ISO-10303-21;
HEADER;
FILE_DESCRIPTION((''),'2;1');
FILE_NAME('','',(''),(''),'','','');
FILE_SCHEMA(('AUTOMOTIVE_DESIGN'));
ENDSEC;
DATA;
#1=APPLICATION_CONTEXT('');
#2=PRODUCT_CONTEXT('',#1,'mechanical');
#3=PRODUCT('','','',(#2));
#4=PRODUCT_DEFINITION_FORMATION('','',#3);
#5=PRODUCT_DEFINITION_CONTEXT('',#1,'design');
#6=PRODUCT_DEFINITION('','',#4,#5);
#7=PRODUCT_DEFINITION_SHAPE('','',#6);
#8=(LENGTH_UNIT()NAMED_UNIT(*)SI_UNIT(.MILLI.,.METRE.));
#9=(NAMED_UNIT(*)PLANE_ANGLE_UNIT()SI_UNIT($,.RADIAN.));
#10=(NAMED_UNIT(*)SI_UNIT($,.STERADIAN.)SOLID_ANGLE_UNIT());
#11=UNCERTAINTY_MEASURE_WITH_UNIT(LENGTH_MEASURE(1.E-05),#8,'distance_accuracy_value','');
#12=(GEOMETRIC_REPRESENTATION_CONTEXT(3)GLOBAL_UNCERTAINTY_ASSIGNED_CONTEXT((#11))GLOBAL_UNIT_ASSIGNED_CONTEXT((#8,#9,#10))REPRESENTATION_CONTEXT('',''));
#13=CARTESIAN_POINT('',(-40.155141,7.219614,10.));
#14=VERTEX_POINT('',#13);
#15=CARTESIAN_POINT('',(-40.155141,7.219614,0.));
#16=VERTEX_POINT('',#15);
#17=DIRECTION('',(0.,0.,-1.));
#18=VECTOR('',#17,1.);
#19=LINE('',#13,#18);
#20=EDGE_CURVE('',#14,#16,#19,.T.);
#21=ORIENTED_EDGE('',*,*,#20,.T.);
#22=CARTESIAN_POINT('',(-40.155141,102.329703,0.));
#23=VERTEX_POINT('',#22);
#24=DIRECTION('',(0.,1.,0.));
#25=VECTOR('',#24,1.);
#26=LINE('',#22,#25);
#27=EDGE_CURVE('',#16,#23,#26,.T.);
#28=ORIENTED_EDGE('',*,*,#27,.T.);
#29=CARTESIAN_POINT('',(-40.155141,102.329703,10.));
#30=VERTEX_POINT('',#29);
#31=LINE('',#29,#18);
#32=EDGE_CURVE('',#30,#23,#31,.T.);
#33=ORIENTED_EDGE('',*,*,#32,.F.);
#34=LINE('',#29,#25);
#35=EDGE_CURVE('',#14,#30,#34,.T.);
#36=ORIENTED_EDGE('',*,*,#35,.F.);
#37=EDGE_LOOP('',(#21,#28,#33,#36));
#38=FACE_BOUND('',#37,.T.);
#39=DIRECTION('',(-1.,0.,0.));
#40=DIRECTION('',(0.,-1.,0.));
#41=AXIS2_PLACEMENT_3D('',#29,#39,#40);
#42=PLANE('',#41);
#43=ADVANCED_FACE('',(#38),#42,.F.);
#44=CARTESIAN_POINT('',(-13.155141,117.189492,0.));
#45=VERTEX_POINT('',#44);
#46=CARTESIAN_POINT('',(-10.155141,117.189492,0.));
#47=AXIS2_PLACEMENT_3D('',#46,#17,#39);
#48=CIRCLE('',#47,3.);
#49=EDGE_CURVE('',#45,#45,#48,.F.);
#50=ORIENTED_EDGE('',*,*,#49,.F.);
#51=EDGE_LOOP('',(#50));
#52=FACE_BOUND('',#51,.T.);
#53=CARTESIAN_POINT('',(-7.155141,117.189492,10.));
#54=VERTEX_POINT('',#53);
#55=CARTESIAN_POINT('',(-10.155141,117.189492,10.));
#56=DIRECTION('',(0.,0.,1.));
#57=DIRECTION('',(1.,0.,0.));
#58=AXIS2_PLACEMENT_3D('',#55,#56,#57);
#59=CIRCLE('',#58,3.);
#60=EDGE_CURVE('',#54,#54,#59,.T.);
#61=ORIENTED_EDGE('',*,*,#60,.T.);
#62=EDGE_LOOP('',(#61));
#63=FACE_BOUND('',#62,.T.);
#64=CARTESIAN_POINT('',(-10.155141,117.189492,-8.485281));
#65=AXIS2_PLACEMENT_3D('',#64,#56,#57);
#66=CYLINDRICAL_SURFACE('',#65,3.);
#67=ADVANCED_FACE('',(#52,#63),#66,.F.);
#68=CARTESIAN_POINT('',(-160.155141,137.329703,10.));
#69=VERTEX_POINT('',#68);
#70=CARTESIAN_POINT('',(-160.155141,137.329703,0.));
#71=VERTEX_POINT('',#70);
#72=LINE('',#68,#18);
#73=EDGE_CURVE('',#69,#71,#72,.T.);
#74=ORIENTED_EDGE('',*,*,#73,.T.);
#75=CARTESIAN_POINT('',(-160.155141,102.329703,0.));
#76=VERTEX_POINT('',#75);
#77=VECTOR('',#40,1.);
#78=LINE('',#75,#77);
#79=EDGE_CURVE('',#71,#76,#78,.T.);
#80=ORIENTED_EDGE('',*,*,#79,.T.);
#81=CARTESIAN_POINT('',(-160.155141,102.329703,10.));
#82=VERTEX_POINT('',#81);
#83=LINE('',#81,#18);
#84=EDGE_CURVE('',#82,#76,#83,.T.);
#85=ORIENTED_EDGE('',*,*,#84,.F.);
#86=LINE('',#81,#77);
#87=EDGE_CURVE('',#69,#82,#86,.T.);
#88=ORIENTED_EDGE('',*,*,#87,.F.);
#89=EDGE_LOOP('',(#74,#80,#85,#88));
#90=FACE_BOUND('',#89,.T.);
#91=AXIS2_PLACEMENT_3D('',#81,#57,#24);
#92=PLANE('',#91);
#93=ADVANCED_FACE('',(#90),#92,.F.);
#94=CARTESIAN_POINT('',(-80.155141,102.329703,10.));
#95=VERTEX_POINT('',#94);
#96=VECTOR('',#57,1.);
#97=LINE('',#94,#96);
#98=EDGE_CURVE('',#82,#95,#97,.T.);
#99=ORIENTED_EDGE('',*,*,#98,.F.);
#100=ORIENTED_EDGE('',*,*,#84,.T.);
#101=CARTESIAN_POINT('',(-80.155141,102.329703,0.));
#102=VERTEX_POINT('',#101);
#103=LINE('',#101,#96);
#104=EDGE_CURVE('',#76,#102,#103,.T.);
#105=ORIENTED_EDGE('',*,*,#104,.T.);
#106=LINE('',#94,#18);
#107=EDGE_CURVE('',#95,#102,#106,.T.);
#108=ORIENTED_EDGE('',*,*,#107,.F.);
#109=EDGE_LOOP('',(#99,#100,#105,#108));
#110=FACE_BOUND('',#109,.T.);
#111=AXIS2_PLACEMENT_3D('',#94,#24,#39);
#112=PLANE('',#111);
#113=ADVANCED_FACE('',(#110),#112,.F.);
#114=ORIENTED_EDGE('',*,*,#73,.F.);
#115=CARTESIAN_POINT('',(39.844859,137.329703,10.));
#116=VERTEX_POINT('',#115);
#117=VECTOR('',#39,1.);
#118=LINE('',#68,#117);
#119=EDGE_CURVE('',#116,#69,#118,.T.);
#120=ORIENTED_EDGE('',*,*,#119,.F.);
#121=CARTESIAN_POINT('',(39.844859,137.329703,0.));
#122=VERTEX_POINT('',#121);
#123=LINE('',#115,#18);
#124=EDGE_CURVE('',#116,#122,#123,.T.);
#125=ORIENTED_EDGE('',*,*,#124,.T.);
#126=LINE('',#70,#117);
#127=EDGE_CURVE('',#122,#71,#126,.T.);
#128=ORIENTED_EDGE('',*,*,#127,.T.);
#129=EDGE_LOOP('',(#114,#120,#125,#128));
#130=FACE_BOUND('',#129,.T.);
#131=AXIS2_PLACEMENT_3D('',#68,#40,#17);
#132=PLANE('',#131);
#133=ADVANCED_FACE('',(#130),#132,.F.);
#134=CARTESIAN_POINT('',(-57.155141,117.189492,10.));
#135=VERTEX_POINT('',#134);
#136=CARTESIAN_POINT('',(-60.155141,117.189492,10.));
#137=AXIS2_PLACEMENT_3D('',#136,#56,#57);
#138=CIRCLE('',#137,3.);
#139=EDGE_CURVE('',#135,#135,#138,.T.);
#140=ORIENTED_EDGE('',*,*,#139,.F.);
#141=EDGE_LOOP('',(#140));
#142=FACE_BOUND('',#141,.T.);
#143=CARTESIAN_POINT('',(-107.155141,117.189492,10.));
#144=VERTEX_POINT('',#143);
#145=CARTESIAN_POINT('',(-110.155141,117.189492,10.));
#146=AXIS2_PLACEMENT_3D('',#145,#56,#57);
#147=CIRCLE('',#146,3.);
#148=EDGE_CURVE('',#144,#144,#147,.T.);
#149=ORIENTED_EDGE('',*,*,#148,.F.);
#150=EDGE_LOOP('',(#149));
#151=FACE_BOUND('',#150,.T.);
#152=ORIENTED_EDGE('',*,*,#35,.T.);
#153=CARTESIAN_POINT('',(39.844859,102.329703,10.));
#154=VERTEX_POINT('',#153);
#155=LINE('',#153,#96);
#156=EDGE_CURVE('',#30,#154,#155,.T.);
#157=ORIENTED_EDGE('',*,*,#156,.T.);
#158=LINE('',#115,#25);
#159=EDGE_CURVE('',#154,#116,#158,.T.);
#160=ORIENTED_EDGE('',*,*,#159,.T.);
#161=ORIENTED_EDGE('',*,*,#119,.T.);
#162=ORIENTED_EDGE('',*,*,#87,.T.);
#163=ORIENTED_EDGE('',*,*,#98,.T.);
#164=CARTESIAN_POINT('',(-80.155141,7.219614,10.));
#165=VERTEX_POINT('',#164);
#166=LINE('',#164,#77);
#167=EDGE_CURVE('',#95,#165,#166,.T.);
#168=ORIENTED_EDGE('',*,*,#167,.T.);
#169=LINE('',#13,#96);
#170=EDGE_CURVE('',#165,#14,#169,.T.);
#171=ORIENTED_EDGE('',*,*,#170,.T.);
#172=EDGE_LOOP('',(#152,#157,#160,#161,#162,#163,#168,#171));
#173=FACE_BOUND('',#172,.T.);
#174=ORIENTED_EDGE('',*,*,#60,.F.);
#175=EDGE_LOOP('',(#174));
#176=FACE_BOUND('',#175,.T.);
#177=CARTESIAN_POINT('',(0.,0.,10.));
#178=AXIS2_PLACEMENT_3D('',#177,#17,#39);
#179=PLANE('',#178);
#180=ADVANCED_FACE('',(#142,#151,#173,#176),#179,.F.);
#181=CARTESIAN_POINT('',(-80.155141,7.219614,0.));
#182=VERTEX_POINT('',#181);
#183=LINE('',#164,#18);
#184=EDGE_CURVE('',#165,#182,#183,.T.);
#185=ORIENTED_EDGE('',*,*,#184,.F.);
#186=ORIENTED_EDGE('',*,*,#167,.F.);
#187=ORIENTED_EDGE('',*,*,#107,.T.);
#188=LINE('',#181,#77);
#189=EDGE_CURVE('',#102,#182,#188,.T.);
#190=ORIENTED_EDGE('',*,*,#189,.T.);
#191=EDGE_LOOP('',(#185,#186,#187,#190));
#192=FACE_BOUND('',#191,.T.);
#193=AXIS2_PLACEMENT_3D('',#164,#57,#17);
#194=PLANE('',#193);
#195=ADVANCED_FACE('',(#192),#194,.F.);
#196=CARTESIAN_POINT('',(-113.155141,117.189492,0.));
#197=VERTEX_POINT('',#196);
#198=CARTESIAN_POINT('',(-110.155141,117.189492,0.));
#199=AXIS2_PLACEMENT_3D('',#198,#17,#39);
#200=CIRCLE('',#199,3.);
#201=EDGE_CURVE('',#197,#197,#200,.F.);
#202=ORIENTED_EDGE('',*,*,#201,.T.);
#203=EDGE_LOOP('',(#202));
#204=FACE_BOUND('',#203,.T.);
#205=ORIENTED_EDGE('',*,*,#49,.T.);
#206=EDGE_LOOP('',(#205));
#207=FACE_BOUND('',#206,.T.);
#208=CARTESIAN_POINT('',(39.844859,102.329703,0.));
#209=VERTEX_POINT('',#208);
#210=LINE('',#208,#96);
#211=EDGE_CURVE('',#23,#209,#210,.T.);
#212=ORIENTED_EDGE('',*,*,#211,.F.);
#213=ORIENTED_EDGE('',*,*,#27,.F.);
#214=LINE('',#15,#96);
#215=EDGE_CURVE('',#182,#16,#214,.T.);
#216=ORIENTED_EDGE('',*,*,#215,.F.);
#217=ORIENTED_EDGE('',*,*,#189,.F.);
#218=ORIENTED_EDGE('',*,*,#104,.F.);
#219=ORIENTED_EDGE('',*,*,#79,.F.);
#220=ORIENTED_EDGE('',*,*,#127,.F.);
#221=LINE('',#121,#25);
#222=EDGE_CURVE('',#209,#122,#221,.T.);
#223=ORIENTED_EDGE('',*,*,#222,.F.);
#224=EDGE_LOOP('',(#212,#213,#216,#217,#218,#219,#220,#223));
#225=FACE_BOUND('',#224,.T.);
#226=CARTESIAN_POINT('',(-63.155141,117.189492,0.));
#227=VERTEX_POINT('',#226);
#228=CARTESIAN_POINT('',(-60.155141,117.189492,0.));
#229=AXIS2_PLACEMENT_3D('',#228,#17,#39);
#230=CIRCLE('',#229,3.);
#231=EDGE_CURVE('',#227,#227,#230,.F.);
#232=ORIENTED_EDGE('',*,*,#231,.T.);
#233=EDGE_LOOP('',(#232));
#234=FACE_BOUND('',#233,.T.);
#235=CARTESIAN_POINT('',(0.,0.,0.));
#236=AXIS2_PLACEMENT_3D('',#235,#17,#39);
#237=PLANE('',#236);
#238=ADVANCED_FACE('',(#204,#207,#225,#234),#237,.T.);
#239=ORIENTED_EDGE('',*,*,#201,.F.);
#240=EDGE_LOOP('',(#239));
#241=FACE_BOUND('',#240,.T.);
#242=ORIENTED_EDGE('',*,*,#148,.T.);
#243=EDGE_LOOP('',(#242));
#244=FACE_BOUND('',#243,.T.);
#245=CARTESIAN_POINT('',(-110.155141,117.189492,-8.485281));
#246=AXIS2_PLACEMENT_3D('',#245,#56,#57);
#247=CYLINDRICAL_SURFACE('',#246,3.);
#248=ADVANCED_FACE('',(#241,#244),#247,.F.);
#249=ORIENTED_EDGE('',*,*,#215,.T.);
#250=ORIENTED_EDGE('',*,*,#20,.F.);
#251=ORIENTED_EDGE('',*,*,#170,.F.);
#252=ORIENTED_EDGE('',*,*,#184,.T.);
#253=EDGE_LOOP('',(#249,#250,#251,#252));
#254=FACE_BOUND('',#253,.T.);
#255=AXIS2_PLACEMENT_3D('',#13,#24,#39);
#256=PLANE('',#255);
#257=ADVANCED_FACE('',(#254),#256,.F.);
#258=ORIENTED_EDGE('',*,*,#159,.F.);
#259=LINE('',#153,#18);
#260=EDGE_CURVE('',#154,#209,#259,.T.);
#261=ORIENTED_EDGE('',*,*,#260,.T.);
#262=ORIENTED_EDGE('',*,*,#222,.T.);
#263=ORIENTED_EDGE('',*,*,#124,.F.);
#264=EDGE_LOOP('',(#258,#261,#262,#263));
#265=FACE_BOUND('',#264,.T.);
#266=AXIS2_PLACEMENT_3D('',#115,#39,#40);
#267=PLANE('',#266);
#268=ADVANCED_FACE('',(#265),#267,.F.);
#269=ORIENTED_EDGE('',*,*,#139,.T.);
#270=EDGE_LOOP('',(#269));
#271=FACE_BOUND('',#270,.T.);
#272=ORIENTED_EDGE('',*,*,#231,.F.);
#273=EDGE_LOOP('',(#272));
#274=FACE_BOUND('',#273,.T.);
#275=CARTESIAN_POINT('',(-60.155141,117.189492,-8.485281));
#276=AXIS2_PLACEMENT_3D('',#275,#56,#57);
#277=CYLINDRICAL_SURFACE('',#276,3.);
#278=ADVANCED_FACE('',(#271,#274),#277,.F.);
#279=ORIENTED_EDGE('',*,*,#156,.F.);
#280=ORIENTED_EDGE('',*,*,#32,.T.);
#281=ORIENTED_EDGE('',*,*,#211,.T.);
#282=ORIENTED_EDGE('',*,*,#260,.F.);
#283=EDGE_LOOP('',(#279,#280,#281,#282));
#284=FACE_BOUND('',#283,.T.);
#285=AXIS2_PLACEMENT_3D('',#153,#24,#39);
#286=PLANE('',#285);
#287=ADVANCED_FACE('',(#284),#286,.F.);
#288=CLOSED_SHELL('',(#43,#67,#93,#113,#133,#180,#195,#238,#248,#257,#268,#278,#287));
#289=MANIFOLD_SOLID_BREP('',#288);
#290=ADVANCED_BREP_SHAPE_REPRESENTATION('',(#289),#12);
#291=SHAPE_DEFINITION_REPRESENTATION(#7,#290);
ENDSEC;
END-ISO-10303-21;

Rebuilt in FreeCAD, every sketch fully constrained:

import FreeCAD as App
import Part
import Sketcher

V = App.Vector


def add_polygon(sketch, points):
    """Adds a closed chain of lines whose ends are joined by coincident constraints."""
    first, n = sketch.GeometryCount, len(points)
    for a, b in zip(points, points[1:] + points[:1]):
        sketch.addGeometry(Part.LineSegment(App.Vector(*a, 0), App.Vector(*b, 0)), False)
    for i in range(n):
        sketch.addConstraint(Sketcher.Constraint("Coincident", first + i, 2, first + (i + 1) % n, 1))

doc = App.newDocument("Part")
body = doc.addObject("PartDesign::Body", "Body")

# Sketch on XY plane
sketch1 = body.newObject("Sketcher::SketchObject", "Sketch")
sketch1.AttachmentSupport = (doc.getObject("XY_Plane"), [""])
sketch1.MapMode = "FlatFace"
add_polygon(sketch1, [(-80, 7), (-40, 7), (-40, 102), (40, 102), (40, 137), (-160, 137), (-160, 102), (-80, 102)])  # lines 0-7
sketch1.addConstraint(Sketcher.Constraint("Horizontal", 0))
sketch1.addConstraint(Sketcher.Constraint("Vertical", 1))
sketch1.addConstraint(Sketcher.Constraint("Horizontal", 2))
sketch1.addConstraint(Sketcher.Constraint("Vertical", 3))
sketch1.addConstraint(Sketcher.Constraint("Horizontal", 4))
sketch1.addConstraint(Sketcher.Constraint("Vertical", 5))
sketch1.addConstraint(Sketcher.Constraint("Horizontal", 6))
sketch1.addConstraint(Sketcher.Constraint("Vertical", 7))
sketch1.addConstraint(Sketcher.Constraint("Horizontal", 2, 2, 5, 2))
sketch1.addConstraint(Sketcher.Constraint("Equal", 2, 6))
sketch1.addConstraint(Sketcher.Constraint("DistanceX", 0, 1, 0, 2, 40.0))
sketch1.addConstraint(Sketcher.Constraint("DistanceX", 2, 1, 2, 2, 80.0))
sketch1.addConstraint(Sketcher.Constraint("DistanceY", 3, 1, 3, 2, 35.0))
sketch1.addConstraint(Sketcher.Constraint("DistanceY", 1, 1, 1, 2, 95.110089))
sketch1.addConstraint(Sketcher.Constraint("DistanceX", 0, 2, -1, 1, 40.155141))
sketch1.addConstraint(Sketcher.Constraint("DistanceY", -1, 1, 0, 2, 7.219614))
pad1 = body.newObject("PartDesign::Pad", "Pad")
pad1.Profile = sketch1
pad1.Length = 10

# Sketch on XY plane
sketch2 = body.newObject("Sketcher::SketchObject", "Sketch001")
sketch2.AttachmentSupport = (doc.getObject("XY_Plane"), [""])
sketch2.MapMode = "FlatFace"
sketch2.AttachmentOffset = App.Placement(V(0, 0, 10), App.Rotation())
sketch2.addGeometry(Part.Circle(V(-10.2, 117.2, 0), V(0, 0, 1), 3), False)
sketch2.addConstraint(Sketcher.Constraint("Diameter", 0, 6.0))
sketch2.addConstraint(Sketcher.Constraint("DistanceX", 0, 3, -1, 1, 10.155141))
sketch2.addConstraint(Sketcher.Constraint("DistanceY", -1, 1, 0, 3, 117.189492))
pocket1 = body.newObject("PartDesign::Pocket", "Pocket")
pocket1.Profile = sketch2
pocket1.Length = 10
doc.recompute()

linearpattern = body.newObject("PartDesign::LinearPattern", "LinearPattern")
linearpattern.Originals = [pocket1]
linearpattern.Direction = (doc.getObject("X_Axis"), [""])
linearpattern.Mode = "offset"
linearpattern.Offset = 50
linearpattern.Occurrences = 3
linearpattern.Reversed = True
body.Tip = linearpattern

doc.recompute()
